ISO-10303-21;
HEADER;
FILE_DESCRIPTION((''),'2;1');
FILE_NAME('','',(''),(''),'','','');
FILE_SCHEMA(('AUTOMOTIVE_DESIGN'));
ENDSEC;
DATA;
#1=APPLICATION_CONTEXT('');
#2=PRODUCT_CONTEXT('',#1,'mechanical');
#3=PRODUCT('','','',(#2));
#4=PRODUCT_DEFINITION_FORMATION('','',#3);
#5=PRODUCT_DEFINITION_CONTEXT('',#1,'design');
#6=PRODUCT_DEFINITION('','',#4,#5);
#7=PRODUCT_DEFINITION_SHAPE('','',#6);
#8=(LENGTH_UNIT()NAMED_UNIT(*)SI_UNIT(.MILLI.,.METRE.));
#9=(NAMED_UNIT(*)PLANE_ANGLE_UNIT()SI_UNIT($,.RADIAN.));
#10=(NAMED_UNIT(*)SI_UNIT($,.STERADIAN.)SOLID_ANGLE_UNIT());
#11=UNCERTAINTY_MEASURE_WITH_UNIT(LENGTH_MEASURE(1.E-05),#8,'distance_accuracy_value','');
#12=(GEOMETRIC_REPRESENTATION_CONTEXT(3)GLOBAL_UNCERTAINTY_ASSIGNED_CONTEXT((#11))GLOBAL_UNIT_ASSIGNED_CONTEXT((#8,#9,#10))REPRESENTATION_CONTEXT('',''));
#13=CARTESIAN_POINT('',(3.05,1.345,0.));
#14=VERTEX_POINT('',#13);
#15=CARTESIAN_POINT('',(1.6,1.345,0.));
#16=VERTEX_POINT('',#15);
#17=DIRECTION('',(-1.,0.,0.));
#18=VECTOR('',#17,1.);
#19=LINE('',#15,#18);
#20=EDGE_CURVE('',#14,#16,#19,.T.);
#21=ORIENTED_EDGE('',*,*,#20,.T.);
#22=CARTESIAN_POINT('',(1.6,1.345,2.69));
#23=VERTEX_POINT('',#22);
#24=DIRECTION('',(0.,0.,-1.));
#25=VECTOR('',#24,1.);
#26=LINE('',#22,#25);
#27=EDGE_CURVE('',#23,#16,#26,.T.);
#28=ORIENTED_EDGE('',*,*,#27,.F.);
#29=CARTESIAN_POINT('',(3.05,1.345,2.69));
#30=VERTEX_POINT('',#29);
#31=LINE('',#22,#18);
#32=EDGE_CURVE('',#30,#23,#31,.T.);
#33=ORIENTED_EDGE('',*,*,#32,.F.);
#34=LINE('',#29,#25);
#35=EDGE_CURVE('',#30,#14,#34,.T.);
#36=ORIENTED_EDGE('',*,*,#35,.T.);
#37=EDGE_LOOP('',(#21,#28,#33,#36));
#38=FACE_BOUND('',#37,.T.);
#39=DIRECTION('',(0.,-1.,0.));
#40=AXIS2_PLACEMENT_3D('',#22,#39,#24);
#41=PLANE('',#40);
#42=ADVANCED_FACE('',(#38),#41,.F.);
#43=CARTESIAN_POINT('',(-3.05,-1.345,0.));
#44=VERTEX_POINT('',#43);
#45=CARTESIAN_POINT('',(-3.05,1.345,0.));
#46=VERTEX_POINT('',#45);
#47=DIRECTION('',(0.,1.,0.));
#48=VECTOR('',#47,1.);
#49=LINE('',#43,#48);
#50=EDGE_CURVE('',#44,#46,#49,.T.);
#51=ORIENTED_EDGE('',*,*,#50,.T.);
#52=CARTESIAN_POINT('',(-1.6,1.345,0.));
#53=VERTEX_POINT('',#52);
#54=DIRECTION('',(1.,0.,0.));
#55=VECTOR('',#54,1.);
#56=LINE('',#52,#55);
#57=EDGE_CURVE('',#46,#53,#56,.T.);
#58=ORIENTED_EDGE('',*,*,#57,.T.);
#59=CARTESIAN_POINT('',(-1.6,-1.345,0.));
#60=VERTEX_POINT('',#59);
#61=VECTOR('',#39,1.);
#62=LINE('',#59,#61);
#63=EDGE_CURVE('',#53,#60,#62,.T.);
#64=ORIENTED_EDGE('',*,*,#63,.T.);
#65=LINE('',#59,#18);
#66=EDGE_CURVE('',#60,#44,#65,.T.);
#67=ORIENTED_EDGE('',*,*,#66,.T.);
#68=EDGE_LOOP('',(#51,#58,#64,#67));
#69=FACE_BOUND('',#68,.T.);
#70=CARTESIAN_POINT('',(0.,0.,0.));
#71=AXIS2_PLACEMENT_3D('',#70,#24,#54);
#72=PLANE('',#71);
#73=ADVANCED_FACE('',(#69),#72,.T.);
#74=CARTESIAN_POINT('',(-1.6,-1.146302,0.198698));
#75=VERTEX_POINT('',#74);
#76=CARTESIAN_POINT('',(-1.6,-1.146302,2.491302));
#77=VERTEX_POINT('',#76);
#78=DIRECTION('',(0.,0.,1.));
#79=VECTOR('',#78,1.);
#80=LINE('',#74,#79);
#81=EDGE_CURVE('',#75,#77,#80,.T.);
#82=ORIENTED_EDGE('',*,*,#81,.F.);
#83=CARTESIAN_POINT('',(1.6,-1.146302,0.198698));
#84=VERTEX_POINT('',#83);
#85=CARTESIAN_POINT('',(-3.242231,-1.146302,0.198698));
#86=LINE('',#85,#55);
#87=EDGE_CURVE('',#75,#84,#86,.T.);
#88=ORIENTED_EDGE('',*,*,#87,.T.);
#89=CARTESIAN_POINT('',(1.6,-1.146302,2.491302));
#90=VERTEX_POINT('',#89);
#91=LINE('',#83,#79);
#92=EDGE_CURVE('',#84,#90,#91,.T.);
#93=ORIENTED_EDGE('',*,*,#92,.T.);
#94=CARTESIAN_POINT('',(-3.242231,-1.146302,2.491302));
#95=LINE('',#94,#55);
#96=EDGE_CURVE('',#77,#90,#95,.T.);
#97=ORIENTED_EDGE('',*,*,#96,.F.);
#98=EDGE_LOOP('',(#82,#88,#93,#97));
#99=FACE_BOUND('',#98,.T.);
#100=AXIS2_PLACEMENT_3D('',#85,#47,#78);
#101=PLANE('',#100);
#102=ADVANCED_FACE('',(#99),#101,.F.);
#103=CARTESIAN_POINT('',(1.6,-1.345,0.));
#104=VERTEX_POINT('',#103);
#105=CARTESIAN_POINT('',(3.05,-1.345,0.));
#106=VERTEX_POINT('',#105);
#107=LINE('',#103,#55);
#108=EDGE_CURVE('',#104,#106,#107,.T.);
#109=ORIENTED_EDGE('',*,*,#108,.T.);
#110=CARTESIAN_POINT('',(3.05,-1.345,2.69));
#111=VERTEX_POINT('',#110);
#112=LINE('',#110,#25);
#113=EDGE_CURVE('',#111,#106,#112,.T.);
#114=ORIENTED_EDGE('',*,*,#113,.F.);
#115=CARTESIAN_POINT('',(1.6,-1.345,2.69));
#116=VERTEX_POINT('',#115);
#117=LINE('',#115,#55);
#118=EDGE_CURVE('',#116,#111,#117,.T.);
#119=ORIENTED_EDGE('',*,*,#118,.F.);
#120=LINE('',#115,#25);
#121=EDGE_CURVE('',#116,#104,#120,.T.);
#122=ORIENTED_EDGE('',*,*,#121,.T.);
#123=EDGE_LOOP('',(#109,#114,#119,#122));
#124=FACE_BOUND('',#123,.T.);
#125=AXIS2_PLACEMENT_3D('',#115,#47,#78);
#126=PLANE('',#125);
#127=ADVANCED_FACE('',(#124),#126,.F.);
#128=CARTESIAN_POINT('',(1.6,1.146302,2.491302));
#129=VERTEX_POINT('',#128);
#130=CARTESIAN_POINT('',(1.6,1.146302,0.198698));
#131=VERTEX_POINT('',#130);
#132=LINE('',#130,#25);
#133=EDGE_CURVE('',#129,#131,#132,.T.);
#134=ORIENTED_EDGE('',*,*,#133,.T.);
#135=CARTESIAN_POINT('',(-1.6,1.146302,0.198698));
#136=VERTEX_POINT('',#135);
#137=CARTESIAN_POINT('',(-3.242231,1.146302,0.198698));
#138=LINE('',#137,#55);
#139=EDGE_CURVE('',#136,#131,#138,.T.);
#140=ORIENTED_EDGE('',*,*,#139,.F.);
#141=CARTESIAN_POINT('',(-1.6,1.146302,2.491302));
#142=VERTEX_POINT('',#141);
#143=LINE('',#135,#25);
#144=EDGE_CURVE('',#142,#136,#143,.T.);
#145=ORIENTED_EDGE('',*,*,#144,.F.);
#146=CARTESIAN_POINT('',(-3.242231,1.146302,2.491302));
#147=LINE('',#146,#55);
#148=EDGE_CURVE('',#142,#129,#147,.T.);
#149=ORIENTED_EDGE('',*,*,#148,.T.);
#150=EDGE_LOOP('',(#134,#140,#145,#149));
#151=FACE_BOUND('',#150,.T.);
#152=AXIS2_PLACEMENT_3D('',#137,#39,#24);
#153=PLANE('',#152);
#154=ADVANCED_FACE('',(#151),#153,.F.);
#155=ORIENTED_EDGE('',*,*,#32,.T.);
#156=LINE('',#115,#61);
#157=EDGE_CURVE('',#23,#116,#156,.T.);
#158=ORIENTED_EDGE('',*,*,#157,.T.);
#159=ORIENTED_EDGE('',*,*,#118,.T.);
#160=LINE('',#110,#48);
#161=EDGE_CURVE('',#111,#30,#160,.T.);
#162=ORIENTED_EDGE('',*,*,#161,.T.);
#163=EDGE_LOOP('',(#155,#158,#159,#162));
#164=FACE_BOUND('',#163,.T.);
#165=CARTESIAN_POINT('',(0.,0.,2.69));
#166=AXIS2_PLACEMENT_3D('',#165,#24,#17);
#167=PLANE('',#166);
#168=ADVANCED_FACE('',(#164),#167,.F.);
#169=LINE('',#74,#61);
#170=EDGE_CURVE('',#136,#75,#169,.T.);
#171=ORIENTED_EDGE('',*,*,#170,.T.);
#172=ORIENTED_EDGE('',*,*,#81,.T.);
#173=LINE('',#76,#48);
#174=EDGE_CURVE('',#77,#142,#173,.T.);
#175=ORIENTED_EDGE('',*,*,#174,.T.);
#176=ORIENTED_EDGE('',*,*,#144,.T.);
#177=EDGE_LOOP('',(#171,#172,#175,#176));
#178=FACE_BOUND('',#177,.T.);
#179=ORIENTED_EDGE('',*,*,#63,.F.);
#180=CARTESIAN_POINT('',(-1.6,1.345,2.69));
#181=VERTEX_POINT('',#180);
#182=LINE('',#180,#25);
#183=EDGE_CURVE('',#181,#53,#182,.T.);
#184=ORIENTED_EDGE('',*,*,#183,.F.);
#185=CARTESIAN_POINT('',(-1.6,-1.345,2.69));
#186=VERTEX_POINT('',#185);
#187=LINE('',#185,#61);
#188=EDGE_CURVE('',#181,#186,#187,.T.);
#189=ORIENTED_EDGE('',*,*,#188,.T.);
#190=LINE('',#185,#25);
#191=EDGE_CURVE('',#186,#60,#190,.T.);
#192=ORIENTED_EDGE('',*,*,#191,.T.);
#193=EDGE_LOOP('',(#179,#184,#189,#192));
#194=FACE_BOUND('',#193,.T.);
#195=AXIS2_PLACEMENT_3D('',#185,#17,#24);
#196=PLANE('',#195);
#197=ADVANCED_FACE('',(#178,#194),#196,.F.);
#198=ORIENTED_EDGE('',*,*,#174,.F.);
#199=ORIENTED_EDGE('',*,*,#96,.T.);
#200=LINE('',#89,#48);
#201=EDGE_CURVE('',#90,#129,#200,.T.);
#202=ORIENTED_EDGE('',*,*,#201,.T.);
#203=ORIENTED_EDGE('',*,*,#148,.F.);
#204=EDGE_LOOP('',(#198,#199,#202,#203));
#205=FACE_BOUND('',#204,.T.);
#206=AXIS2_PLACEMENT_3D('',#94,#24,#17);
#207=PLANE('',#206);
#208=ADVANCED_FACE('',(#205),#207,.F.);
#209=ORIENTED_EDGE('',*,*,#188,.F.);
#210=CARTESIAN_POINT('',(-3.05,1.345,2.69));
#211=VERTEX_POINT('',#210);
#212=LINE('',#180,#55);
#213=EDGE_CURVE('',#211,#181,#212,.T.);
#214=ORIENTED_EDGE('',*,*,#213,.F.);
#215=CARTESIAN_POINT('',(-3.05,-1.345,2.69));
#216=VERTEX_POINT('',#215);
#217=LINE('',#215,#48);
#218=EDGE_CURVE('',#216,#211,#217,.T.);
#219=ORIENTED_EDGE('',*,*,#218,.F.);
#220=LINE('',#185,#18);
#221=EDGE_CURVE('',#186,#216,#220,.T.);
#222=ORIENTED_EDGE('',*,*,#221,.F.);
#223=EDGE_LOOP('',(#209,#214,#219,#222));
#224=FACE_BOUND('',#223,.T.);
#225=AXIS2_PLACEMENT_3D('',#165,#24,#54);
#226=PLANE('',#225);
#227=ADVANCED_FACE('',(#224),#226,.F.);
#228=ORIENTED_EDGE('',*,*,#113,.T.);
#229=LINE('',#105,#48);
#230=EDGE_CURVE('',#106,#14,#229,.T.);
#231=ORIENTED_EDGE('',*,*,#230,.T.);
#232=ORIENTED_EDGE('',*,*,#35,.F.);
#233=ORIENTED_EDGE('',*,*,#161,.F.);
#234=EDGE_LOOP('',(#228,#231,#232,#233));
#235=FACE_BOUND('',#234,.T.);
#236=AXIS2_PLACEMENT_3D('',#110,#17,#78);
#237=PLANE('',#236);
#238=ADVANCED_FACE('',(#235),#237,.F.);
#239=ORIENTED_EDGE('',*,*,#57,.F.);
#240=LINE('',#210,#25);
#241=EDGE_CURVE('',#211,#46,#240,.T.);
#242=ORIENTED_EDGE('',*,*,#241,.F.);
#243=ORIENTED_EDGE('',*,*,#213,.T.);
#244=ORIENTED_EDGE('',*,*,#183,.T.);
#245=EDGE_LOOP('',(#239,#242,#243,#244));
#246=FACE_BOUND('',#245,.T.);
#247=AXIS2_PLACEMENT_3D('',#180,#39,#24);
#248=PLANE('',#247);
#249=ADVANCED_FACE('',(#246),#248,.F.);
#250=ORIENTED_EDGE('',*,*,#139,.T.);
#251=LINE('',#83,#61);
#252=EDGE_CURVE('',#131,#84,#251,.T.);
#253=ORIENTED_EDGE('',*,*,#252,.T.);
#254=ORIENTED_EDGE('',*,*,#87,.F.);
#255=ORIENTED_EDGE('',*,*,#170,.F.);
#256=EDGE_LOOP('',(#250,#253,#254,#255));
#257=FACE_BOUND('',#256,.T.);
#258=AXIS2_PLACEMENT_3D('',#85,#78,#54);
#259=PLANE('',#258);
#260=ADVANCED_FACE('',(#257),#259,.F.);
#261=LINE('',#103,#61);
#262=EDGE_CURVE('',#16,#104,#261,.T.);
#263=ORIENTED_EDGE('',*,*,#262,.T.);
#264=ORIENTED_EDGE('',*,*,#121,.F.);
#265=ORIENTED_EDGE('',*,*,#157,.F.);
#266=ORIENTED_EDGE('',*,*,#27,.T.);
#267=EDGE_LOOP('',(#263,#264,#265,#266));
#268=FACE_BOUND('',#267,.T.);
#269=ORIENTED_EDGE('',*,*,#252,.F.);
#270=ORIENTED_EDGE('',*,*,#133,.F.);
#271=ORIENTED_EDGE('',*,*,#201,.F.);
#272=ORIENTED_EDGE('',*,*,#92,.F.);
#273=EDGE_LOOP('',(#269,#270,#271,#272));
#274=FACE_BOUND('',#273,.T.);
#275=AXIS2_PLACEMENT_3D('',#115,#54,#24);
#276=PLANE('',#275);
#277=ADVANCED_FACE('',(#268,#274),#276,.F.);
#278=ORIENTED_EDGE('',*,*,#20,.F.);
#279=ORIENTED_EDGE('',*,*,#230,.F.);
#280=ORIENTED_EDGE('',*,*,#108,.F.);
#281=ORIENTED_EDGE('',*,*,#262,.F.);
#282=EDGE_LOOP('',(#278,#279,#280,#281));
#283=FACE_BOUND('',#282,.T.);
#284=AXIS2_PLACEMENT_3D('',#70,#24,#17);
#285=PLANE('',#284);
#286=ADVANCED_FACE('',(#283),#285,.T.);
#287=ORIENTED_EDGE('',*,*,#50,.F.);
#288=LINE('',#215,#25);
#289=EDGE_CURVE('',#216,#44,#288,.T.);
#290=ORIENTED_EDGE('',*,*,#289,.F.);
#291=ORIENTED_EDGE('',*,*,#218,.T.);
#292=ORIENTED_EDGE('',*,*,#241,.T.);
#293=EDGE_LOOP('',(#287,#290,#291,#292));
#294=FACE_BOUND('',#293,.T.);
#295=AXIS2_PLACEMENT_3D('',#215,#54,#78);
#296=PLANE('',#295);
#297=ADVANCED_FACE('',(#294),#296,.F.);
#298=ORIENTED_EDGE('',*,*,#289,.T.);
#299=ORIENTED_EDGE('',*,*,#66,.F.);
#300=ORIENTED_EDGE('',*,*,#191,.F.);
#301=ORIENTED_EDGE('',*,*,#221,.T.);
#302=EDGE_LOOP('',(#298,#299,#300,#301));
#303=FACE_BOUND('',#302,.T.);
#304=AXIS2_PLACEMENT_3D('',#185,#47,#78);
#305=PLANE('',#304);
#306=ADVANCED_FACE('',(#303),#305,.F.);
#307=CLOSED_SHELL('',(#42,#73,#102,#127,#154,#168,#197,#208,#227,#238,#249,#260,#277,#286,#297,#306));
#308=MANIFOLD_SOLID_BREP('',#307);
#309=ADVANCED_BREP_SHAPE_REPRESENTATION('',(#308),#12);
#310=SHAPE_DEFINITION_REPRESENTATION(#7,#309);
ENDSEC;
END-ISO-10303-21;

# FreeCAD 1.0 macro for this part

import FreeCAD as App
import Part
import Sketcher


def add_polygon(sketch, points):
    """Adds a closed chain of lines whose ends are joined by coincident constraints."""
    first, n = sketch.GeometryCount, len(points)
    for a, b in zip(points, points[1:] + points[:1]):
        sketch.addGeometry(Part.LineSegment(App.Vector(*a, 0), App.Vector(*b, 0)), False)
    for i in range(n):
        sketch.addConstraint(Sketcher.Constraint("Coincident", first + i, 2, first + (i + 1) % n, 1))

doc = App.newDocument("Part")
body = doc.addObject("PartDesign::Body", "Body")

sketch1 = doc.addObject("Sketcher::SketchObject", "Sketch")
body.addObject(sketch1)
sketch1.AttachmentSupport = (doc.XY_Plane, [""])
sketch1.MapMode = "FlatFace"
add_polygon(sketch1, [(1.6, 1.3), (1.6, -1.3), (3, -1.3), (3, 1.3)])
sketch1.addConstraint([
    Sketcher.Constraint("Vertical", 0),
    Sketcher.Constraint("Horizontal", 1),
    Sketcher.Constraint("Vertical", 2),
    Sketcher.Constraint("Horizontal", 3),
    Sketcher.Constraint("DistanceX", 1, 1, 1, 2, 1.45),
    Sketcher.Constraint("DistanceY", 0, 2, 0, 1, 2.69),
    Sketcher.Constraint("DistanceX", -1, 1, 0, 2, 1.6),
    Sketcher.Constraint("DistanceY", 0, 2, -1, 1, 1.345),
])
pad1 = doc.addObject("PartDesign::Pad", "Pad")
body.addObject(pad1)
pad1.Profile = sketch1
pad1.Length = 2.69

sketch2 = doc.addObject("Sketcher::SketchObject", "Sketch001")
body.addObject(sketch2)
sketch2.AttachmentSupport = (doc.YZ_Plane, [""])
sketch2.MapMode = "FlatFace"
sketch2.AttachmentOffset = App.Placement(App.Vector(0, 0, 1.6), App.Rotation())
add_polygon(sketch2, [(1.1, 0.2), (-1.1, 0.2), (-1.1, 2.5), (1.1, 2.5)])
sketch2.addConstraint([
    Sketcher.Constraint("Horizontal", 0),
    Sketcher.Constraint("Vertical", 1),
    Sketcher.Constraint("Horizontal", 2),
    Sketcher.Constraint("Vertical", 3),
    Sketcher.Constraint("Equal", 2, 1),
    Sketcher.Constraint("DistanceX", 0, 2, -1, 1, 1.146302),
    Sketcher.Constraint("DistanceY", -1, 1, 0, 2, 0.198698),
    Sketcher.Constraint("DistanceY", -1, 1, 1, 2, 2.491302),
])
pad2 = doc.addObject("PartDesign::Pad", "Pad001")
body.addObject(pad2)
pad2.Profile = sketch2
pad2.Length = 1.6
pad2.Reversed = True
body2 = doc.addObject("PartDesign::Body", "Body001")
doc.recompute()

body2.BaseFeature = body
doc.recompute()

mirroring = doc.addObject("Part::Mirroring", "Mirroring")
mirroring.Source = body
mirroring.Base = App.Vector(0, 0, 0)
mirroring.Normal = App.Vector(1, 0, 0)
body3 = doc.addObject("PartDesign::Body", "Body002")
body3.BaseFeature = mirroring
boolean = doc.addObject("PartDesign::Boolean", "Boolean")
body2.addObject(boolean)
boolean.Type = "Fuse"
boolean.addObjects([body3])
doc.recompute()
mirroring.Visibility = False

doc.recompute()
